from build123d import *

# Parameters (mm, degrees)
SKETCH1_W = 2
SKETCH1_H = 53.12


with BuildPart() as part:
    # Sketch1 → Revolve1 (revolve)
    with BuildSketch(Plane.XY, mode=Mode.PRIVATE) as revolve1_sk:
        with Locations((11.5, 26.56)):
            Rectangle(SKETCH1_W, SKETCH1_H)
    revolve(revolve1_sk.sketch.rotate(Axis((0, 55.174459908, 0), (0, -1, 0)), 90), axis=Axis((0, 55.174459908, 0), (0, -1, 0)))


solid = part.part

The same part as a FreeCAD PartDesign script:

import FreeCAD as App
import Part
import Sketcher

V = App.Vector


def add_polygon(sketch, points):
    """Adds a closed chain of lines whose ends are joined by coincident constraints."""
    first, n = sketch.GeometryCount, len(points)
    for a, b in zip(points, points[1:] + points[:1]):
        sketch.addGeometry(Part.LineSegment(App.Vector(*a, 0), App.Vector(*b, 0)), False)
    for i in range(n):
        sketch.addConstraint(Sketcher.Constraint("Coincident", first + i, 2, first + (i + 1) % n, 1))

doc = App.newDocument("Part")
body = doc.addObject("PartDesign::Body", "Body")

# Sketch on XY plane
sketch1 = body.newObject("Sketcher::SketchObject", "Sketch")
sketch1.AttachmentSupport = (doc.getObject("XY_Plane"), [""])
sketch1.MapMode = "FlatFace"
add_polygon(sketch1, [(10.5, 53.12), (10.5, 0), (12.5, 0), (12.5, 53.12)])  # lines 0-3
sketch1.addConstraint([
    Sketcher.Constraint("Vertical", 0),
    Sketcher.Constraint("Horizontal", 1),
    Sketcher.Constraint("Vertical", 2),
    Sketcher.Constraint("Horizontal", 3),
    Sketcher.Constraint("PointOnObject", 0, 2, -1),
    Sketcher.Constraint("DistanceX", 1, 1, 1, 2, 2.0),
    Sketcher.Constraint("DistanceY", 0, 2, 0, 1, 53.12),
    Sketcher.Constraint("DistanceX", -1, 1, 0, 2, 10.5),
])
revolution = body.newObject("PartDesign::Revolution", "Revolution")
revolution.Profile = sketch1
revolution.ReferenceAxis = (sketch1, ["V_Axis"])
revolution.Angle = 360

doc.recompute()
